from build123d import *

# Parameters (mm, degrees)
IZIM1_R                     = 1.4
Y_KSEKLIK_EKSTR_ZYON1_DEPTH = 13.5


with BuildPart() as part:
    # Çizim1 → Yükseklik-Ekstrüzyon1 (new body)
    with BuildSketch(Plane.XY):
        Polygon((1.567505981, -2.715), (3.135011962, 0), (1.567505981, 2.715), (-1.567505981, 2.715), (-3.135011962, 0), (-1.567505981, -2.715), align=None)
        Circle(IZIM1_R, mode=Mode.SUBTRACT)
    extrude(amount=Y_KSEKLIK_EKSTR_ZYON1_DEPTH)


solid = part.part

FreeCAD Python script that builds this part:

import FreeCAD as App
import Part
import Sketcher
Q = App.Units.Quantity


def add_polygon(sketch, points):
    """Adds a closed chain of lines whose ends are joined by coincident constraints."""
    first, n = sketch.GeometryCount, len(points)
    for a, b in zip(points, points[1:] + points[:1]):
        sketch.addGeometry(Part.LineSegment(App.Vector(*a, 0), App.Vector(*b, 0)), False)
    for i in range(n):
        sketch.addConstraint(Sketcher.Constraint("Coincident", first + i, 2, first + (i + 1) % n, 1))

doc = App.newDocument("Part")
body = doc.addObject("PartDesign::Body", "Body")

# Sketch on XY plane
sketch1 = body.newObject("Sketcher::SketchObject", "Sketch")
sketch1.AttachmentSupport = (doc.getObject("XY_Plane"), [""])
sketch1.MapMode = "FlatFace"
add_polygon(sketch1, [(1.567506, -2.715), (3.135012, 0), (1.567506, 2.715), (-1.567506, 2.715), (-3.135012, 0), (-1.567506, -2.715)])  # lines 0-5
sketch1.addGeometry(Part.Circle(App.Vector(0, 0, 0), App.Vector(0, 0, 1), 1.4), False)  # 6
sketch1.addConstraint(Sketcher.Constraint("Horizontal", 2))
sketch1.addConstraint(Sketcher.Constraint("Horizontal", 5))
sketch1.addConstraint(Sketcher.Constraint("Coincident", 6, 3, -1, 1))
sketch1.addConstraint(Sketcher.Constraint("Symmetric", 0, 2, 3, 2, -1, 1))
sketch1.addConstraint(Sketcher.Constraint("Symmetric", 1, 2, 4, 2, -1, 1))
sketch1.addConstraint(Sketcher.Constraint("PointOnObject", 0, 2, -1))
sketch1.addConstraint(Sketcher.Constraint("Parallel", 0, 3))
sketch1.addConstraint(Sketcher.Constraint("Vertical", 2, 2, 4, 2))
sketch1.addConstraint(Sketcher.Constraint("Diameter", 6, Q("2.8 mm")))
sketch1.addConstraint(Sketcher.Constraint("Angle", 0, Q("60 deg")))
sketch1.addConstraint(Sketcher.Constraint("DistanceY", 4, 2, 2, 2, Q("5.43 mm")))
sketch1.addConstraint(Sketcher.Constraint("DistanceX", 2, 2, 2, 1, Q("3.135012 mm")))
pad1 = body.newObject("PartDesign::Pad", "Pad")
pad1.Profile = sketch1
pad1.Length = 13.5

doc.recompute()
